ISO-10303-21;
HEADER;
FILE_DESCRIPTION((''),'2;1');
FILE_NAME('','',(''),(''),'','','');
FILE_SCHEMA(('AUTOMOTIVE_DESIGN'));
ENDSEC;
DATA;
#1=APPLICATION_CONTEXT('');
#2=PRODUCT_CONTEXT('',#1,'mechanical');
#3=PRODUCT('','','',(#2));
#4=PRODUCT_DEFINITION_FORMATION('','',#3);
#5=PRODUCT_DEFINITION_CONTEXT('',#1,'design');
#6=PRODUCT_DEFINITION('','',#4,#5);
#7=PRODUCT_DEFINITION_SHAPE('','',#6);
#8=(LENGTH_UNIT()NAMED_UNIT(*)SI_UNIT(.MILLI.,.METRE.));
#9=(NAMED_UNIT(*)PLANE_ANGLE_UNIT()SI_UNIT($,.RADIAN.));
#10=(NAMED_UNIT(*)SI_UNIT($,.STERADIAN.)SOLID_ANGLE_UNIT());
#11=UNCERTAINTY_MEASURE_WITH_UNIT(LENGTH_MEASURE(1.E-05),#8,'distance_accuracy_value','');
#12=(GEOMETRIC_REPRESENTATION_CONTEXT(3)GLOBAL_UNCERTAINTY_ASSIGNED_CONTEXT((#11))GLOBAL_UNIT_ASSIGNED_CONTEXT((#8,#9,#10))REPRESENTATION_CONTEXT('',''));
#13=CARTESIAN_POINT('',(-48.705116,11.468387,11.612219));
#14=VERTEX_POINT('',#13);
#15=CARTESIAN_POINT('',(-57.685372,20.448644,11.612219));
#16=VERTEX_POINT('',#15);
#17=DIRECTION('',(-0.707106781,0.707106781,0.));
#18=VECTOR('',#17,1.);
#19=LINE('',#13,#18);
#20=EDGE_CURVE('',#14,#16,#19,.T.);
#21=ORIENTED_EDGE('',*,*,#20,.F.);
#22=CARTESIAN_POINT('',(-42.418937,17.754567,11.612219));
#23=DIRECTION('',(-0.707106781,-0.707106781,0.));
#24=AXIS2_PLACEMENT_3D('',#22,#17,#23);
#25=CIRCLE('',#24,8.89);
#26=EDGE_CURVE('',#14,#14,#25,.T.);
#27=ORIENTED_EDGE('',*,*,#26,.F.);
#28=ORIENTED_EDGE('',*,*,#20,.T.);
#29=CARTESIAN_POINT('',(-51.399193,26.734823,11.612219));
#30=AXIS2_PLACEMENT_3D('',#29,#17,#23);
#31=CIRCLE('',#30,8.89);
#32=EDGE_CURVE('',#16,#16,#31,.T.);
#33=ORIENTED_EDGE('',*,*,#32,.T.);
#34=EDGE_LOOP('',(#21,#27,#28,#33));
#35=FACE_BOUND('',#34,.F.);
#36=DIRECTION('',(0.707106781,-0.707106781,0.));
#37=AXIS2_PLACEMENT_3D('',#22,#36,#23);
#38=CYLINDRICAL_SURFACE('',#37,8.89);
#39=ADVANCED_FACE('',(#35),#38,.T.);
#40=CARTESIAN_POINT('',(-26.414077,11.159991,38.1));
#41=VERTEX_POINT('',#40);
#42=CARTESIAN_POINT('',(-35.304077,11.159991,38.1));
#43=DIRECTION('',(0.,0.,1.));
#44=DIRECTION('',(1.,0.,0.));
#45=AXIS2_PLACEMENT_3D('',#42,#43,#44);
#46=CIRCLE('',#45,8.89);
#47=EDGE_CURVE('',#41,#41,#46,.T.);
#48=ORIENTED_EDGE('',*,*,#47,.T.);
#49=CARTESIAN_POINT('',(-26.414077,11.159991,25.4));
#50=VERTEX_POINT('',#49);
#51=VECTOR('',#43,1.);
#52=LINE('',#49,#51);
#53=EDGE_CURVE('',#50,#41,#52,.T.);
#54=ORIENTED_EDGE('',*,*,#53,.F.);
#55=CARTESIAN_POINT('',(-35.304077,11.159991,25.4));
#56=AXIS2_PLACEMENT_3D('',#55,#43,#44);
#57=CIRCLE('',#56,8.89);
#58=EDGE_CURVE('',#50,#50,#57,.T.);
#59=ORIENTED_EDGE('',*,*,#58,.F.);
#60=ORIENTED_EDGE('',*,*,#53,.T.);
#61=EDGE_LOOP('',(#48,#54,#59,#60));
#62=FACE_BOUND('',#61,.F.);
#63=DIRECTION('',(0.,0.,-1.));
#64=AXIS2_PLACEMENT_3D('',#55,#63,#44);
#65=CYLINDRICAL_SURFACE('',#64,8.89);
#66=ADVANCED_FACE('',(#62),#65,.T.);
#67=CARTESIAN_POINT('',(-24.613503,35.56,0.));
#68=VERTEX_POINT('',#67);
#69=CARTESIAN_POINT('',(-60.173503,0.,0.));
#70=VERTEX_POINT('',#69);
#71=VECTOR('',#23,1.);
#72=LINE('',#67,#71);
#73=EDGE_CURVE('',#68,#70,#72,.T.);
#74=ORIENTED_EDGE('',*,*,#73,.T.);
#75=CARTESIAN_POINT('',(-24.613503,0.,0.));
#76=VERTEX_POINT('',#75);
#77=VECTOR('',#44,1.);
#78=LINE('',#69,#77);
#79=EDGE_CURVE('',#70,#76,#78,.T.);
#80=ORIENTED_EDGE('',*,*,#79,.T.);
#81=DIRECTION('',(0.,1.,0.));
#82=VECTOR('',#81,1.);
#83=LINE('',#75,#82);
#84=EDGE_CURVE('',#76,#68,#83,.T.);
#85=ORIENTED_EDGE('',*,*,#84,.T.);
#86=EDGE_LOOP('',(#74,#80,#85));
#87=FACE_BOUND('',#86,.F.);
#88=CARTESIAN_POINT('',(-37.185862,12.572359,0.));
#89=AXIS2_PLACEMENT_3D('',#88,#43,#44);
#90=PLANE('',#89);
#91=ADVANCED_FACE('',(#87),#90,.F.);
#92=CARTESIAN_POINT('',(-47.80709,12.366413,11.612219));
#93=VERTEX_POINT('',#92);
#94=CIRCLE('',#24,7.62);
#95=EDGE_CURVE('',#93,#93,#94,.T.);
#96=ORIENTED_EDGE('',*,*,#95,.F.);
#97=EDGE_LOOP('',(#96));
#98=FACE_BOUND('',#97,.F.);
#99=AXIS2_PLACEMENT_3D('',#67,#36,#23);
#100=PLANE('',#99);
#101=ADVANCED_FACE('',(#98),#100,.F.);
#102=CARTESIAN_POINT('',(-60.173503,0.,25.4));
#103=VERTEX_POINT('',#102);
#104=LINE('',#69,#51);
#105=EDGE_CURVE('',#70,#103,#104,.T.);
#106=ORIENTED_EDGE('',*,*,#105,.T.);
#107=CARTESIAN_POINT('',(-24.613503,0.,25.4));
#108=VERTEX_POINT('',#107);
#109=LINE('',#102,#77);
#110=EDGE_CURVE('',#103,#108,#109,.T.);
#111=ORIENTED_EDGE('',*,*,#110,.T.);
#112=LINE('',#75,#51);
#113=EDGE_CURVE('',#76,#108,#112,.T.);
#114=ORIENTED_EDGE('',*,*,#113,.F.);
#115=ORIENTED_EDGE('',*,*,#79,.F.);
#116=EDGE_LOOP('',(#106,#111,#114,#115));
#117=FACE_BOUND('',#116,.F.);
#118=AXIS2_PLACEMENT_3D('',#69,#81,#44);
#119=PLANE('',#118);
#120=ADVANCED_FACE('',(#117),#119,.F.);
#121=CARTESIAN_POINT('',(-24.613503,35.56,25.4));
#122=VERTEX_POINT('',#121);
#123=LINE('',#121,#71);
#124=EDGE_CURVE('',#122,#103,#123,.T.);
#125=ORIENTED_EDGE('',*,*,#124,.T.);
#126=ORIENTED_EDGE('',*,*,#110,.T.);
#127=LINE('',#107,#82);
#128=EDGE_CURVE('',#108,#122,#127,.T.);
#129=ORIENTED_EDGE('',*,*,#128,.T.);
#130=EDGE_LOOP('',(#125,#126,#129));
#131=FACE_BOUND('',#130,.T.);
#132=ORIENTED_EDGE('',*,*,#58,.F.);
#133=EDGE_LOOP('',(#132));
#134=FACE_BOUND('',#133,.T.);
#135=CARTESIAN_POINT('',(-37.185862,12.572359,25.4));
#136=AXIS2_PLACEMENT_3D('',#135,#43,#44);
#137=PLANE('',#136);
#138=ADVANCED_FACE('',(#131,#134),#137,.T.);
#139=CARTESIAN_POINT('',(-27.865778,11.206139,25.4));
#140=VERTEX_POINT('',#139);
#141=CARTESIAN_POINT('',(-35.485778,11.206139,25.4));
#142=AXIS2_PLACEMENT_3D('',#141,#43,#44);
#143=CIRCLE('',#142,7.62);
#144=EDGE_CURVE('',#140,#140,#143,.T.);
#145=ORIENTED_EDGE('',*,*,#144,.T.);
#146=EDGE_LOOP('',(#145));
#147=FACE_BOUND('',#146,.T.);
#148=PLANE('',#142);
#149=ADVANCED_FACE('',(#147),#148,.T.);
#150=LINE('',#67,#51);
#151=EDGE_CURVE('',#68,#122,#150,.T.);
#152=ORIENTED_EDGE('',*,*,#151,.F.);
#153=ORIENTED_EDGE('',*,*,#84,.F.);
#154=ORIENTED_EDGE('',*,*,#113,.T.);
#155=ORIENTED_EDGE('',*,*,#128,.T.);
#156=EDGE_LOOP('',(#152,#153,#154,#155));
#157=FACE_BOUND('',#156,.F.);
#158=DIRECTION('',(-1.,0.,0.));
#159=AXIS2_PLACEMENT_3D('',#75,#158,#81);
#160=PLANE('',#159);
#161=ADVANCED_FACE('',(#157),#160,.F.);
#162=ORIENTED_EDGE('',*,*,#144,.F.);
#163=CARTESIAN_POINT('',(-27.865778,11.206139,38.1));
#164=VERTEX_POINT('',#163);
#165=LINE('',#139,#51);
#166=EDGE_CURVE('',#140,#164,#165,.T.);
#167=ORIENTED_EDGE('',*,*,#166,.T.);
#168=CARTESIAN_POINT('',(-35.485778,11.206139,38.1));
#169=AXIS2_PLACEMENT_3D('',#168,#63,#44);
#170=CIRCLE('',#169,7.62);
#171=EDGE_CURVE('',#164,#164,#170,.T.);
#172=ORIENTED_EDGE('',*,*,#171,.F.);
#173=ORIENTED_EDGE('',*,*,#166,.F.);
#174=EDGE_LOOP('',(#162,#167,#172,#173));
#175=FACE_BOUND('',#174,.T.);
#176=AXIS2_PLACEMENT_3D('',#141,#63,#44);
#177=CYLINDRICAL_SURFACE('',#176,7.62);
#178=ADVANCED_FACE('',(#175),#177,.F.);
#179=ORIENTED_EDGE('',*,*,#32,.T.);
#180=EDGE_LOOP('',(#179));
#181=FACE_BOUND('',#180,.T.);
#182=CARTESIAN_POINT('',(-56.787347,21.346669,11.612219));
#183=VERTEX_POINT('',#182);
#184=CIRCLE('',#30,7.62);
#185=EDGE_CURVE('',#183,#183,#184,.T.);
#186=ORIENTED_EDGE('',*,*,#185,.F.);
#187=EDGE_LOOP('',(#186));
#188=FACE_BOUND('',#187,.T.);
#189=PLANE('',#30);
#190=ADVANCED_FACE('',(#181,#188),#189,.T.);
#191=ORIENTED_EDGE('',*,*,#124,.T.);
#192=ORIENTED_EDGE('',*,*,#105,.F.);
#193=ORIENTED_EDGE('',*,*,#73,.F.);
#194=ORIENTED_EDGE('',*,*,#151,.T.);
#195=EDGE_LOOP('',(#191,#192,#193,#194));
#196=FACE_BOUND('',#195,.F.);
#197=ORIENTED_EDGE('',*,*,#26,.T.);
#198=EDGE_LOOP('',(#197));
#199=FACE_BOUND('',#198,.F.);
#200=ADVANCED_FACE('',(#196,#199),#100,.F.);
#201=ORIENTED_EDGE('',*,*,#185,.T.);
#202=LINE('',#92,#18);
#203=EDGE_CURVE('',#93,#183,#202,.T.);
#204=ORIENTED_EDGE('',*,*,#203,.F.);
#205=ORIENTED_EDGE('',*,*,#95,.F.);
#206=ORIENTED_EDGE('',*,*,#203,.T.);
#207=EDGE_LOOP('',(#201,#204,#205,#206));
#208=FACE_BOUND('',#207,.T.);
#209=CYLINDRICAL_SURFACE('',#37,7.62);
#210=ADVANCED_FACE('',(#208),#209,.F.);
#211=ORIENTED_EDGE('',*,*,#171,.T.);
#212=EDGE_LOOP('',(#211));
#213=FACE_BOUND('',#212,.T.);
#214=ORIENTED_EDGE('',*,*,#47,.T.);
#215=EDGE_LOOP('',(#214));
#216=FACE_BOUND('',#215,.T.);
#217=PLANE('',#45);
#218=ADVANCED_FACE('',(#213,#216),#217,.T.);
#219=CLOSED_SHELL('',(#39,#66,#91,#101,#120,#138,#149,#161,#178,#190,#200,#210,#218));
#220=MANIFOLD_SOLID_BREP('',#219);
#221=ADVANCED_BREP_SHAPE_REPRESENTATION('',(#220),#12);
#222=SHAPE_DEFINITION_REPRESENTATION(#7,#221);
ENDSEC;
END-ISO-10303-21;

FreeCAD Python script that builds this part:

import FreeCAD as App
import Part
import Sketcher

V = App.Vector
Q = App.Units.Quantity

doc = App.newDocument("Part")
body = doc.addObject("PartDesign::Body", "Body")

# Sketch on XY plane
sketch1 = body.newObject("Sketcher::SketchObject", "Sketch")
sketch1.AttachmentSupport = (doc.getObject("XY_Plane"), [""])
sketch1.MapMode = "FlatFace"
sketch1.addGeometry([
    Part.LineSegment(V(-25, 36, 0), V(-60, 0, 0)),
    Part.LineSegment(V(-60, 0, 0), V(-25, 0, 0)),
    Part.LineSegment(V(-25, 0, 0), V(-25, 36, 0)),
], False)
sketch1.addConstraint([
    Sketcher.Constraint("Coincident", 0, 2, 1, 1),
    Sketcher.Constraint("Coincident", 1, 2, 2, 1),
    Sketcher.Constraint("Coincident", 2, 2, 0, 1),
    Sketcher.Constraint("Horizontal", 1),
    Sketcher.Constraint("Vertical", 2),
    Sketcher.Constraint("PointOnObject", 0, 2, -1),
    Sketcher.Constraint("Equal", 1, 2),
    Sketcher.Constraint("DistanceX", 1, 1, 1, 2, Q("1.4 in")),
    Sketcher.Constraint("DistanceX", 0, 2, -1, 1, Q("60.173503 mm")),
])
pad1 = body.newObject("PartDesign::Pad", "Pad")
pad1.Profile = sketch1
pad1.Length = Q("1 in")

# Sketch on XY plane
sketch2 = body.newObject("Sketcher::SketchObject", "Sketch001")
sketch2.AttachmentSupport = (doc.getObject("XY_Plane"), [""])
sketch2.MapMode = "FlatFace"
sketch2.AttachmentOffset = App.Placement(V(0, 0, 1 * 25.4), App.Rotation())
sketch2.addGeometry(Part.Circle(V(-35, 11, 0), V(0, 0, 1), 9), False)
sketch2.addConstraint([
    Sketcher.Constraint("Diameter", 0, Q("0.7 in")),
    Sketcher.Constraint("DistanceY", -1, 1, 0, 3, Q("11.159991 mm")),
    Sketcher.Constraint("DistanceX", 0, 3, -1, 1, Q("35.304077 mm")),
])
pad2 = body.newObject("PartDesign::Pad", "Pad001")
pad2.Profile = sketch2
pad2.Length = Q("0.5 in")

# Sketch on XY plane
sketch3 = body.newObject("Sketcher::SketchObject", "Sketch002")
sketch3.AttachmentSupport = (doc.getObject("XY_Plane"), [""])
sketch3.MapMode = "FlatFace"
sketch3.AttachmentOffset = App.Placement(V(0, 0, 1 * 25.4), App.Rotation())
sketch3.addGeometry(Part.Circle(V(-35, 11, 0), V(0, 0, 1), 8), False)
sketch3.addConstraint([
    Sketcher.Constraint("Diameter", 0, Q("0.6 in")),
    Sketcher.Constraint("DistanceX", 0, 3, -1, 1, Q("35.485778 mm")),
    Sketcher.Constraint("DistanceY", -1, 1, 0, 3, Q("11.206139 mm")),
])
pocket1 = body.newObject("PartDesign::Pocket", "Pocket")
pocket1.Profile = sketch3
pocket1.Length = Q("1.54 in")
pocket1.Reversed = True

# Sketch on an angled plane
sketch4 = body.newObject("Sketcher::SketchObject", "Sketch003")
sketch4.Placement = App.Placement(V(-30.086752, 30.086752, 0), App.Rotation(V(-0.707106781, -0.707106781, 0), V(0, 0, 0.999999999), V(-0.707106781, 0.707106781, 0), "ZXY"))
sketch4.addGeometry([
    Part.Circle(V(17, 12, 0), V(0, 0, 1), 9),
    Part.Circle(V(17, 12, 0), V(0, 0, 1), 8),
], False)
sketch4.addConstraint([
    Sketcher.Constraint("Coincident", 1, 3, 0, 3),
    Sketcher.Constraint("Diameter", 0, Q("0.7 in")),
    Sketcher.Constraint("Diameter", 1, Q("0.6 in")),
    Sketcher.Constraint("DistanceY", -1, 1, 0, 3, Q("11.612219 mm")),
    Sketcher.Constraint("DistanceX", -1, 1, 0, 3, Q("17.440343 mm")),
])
pad3 = body.newObject("PartDesign::Pad", "Pad002")
pad3.Profile = sketch4
pad3.Length = Q("0.5 in")

doc.recompute()
